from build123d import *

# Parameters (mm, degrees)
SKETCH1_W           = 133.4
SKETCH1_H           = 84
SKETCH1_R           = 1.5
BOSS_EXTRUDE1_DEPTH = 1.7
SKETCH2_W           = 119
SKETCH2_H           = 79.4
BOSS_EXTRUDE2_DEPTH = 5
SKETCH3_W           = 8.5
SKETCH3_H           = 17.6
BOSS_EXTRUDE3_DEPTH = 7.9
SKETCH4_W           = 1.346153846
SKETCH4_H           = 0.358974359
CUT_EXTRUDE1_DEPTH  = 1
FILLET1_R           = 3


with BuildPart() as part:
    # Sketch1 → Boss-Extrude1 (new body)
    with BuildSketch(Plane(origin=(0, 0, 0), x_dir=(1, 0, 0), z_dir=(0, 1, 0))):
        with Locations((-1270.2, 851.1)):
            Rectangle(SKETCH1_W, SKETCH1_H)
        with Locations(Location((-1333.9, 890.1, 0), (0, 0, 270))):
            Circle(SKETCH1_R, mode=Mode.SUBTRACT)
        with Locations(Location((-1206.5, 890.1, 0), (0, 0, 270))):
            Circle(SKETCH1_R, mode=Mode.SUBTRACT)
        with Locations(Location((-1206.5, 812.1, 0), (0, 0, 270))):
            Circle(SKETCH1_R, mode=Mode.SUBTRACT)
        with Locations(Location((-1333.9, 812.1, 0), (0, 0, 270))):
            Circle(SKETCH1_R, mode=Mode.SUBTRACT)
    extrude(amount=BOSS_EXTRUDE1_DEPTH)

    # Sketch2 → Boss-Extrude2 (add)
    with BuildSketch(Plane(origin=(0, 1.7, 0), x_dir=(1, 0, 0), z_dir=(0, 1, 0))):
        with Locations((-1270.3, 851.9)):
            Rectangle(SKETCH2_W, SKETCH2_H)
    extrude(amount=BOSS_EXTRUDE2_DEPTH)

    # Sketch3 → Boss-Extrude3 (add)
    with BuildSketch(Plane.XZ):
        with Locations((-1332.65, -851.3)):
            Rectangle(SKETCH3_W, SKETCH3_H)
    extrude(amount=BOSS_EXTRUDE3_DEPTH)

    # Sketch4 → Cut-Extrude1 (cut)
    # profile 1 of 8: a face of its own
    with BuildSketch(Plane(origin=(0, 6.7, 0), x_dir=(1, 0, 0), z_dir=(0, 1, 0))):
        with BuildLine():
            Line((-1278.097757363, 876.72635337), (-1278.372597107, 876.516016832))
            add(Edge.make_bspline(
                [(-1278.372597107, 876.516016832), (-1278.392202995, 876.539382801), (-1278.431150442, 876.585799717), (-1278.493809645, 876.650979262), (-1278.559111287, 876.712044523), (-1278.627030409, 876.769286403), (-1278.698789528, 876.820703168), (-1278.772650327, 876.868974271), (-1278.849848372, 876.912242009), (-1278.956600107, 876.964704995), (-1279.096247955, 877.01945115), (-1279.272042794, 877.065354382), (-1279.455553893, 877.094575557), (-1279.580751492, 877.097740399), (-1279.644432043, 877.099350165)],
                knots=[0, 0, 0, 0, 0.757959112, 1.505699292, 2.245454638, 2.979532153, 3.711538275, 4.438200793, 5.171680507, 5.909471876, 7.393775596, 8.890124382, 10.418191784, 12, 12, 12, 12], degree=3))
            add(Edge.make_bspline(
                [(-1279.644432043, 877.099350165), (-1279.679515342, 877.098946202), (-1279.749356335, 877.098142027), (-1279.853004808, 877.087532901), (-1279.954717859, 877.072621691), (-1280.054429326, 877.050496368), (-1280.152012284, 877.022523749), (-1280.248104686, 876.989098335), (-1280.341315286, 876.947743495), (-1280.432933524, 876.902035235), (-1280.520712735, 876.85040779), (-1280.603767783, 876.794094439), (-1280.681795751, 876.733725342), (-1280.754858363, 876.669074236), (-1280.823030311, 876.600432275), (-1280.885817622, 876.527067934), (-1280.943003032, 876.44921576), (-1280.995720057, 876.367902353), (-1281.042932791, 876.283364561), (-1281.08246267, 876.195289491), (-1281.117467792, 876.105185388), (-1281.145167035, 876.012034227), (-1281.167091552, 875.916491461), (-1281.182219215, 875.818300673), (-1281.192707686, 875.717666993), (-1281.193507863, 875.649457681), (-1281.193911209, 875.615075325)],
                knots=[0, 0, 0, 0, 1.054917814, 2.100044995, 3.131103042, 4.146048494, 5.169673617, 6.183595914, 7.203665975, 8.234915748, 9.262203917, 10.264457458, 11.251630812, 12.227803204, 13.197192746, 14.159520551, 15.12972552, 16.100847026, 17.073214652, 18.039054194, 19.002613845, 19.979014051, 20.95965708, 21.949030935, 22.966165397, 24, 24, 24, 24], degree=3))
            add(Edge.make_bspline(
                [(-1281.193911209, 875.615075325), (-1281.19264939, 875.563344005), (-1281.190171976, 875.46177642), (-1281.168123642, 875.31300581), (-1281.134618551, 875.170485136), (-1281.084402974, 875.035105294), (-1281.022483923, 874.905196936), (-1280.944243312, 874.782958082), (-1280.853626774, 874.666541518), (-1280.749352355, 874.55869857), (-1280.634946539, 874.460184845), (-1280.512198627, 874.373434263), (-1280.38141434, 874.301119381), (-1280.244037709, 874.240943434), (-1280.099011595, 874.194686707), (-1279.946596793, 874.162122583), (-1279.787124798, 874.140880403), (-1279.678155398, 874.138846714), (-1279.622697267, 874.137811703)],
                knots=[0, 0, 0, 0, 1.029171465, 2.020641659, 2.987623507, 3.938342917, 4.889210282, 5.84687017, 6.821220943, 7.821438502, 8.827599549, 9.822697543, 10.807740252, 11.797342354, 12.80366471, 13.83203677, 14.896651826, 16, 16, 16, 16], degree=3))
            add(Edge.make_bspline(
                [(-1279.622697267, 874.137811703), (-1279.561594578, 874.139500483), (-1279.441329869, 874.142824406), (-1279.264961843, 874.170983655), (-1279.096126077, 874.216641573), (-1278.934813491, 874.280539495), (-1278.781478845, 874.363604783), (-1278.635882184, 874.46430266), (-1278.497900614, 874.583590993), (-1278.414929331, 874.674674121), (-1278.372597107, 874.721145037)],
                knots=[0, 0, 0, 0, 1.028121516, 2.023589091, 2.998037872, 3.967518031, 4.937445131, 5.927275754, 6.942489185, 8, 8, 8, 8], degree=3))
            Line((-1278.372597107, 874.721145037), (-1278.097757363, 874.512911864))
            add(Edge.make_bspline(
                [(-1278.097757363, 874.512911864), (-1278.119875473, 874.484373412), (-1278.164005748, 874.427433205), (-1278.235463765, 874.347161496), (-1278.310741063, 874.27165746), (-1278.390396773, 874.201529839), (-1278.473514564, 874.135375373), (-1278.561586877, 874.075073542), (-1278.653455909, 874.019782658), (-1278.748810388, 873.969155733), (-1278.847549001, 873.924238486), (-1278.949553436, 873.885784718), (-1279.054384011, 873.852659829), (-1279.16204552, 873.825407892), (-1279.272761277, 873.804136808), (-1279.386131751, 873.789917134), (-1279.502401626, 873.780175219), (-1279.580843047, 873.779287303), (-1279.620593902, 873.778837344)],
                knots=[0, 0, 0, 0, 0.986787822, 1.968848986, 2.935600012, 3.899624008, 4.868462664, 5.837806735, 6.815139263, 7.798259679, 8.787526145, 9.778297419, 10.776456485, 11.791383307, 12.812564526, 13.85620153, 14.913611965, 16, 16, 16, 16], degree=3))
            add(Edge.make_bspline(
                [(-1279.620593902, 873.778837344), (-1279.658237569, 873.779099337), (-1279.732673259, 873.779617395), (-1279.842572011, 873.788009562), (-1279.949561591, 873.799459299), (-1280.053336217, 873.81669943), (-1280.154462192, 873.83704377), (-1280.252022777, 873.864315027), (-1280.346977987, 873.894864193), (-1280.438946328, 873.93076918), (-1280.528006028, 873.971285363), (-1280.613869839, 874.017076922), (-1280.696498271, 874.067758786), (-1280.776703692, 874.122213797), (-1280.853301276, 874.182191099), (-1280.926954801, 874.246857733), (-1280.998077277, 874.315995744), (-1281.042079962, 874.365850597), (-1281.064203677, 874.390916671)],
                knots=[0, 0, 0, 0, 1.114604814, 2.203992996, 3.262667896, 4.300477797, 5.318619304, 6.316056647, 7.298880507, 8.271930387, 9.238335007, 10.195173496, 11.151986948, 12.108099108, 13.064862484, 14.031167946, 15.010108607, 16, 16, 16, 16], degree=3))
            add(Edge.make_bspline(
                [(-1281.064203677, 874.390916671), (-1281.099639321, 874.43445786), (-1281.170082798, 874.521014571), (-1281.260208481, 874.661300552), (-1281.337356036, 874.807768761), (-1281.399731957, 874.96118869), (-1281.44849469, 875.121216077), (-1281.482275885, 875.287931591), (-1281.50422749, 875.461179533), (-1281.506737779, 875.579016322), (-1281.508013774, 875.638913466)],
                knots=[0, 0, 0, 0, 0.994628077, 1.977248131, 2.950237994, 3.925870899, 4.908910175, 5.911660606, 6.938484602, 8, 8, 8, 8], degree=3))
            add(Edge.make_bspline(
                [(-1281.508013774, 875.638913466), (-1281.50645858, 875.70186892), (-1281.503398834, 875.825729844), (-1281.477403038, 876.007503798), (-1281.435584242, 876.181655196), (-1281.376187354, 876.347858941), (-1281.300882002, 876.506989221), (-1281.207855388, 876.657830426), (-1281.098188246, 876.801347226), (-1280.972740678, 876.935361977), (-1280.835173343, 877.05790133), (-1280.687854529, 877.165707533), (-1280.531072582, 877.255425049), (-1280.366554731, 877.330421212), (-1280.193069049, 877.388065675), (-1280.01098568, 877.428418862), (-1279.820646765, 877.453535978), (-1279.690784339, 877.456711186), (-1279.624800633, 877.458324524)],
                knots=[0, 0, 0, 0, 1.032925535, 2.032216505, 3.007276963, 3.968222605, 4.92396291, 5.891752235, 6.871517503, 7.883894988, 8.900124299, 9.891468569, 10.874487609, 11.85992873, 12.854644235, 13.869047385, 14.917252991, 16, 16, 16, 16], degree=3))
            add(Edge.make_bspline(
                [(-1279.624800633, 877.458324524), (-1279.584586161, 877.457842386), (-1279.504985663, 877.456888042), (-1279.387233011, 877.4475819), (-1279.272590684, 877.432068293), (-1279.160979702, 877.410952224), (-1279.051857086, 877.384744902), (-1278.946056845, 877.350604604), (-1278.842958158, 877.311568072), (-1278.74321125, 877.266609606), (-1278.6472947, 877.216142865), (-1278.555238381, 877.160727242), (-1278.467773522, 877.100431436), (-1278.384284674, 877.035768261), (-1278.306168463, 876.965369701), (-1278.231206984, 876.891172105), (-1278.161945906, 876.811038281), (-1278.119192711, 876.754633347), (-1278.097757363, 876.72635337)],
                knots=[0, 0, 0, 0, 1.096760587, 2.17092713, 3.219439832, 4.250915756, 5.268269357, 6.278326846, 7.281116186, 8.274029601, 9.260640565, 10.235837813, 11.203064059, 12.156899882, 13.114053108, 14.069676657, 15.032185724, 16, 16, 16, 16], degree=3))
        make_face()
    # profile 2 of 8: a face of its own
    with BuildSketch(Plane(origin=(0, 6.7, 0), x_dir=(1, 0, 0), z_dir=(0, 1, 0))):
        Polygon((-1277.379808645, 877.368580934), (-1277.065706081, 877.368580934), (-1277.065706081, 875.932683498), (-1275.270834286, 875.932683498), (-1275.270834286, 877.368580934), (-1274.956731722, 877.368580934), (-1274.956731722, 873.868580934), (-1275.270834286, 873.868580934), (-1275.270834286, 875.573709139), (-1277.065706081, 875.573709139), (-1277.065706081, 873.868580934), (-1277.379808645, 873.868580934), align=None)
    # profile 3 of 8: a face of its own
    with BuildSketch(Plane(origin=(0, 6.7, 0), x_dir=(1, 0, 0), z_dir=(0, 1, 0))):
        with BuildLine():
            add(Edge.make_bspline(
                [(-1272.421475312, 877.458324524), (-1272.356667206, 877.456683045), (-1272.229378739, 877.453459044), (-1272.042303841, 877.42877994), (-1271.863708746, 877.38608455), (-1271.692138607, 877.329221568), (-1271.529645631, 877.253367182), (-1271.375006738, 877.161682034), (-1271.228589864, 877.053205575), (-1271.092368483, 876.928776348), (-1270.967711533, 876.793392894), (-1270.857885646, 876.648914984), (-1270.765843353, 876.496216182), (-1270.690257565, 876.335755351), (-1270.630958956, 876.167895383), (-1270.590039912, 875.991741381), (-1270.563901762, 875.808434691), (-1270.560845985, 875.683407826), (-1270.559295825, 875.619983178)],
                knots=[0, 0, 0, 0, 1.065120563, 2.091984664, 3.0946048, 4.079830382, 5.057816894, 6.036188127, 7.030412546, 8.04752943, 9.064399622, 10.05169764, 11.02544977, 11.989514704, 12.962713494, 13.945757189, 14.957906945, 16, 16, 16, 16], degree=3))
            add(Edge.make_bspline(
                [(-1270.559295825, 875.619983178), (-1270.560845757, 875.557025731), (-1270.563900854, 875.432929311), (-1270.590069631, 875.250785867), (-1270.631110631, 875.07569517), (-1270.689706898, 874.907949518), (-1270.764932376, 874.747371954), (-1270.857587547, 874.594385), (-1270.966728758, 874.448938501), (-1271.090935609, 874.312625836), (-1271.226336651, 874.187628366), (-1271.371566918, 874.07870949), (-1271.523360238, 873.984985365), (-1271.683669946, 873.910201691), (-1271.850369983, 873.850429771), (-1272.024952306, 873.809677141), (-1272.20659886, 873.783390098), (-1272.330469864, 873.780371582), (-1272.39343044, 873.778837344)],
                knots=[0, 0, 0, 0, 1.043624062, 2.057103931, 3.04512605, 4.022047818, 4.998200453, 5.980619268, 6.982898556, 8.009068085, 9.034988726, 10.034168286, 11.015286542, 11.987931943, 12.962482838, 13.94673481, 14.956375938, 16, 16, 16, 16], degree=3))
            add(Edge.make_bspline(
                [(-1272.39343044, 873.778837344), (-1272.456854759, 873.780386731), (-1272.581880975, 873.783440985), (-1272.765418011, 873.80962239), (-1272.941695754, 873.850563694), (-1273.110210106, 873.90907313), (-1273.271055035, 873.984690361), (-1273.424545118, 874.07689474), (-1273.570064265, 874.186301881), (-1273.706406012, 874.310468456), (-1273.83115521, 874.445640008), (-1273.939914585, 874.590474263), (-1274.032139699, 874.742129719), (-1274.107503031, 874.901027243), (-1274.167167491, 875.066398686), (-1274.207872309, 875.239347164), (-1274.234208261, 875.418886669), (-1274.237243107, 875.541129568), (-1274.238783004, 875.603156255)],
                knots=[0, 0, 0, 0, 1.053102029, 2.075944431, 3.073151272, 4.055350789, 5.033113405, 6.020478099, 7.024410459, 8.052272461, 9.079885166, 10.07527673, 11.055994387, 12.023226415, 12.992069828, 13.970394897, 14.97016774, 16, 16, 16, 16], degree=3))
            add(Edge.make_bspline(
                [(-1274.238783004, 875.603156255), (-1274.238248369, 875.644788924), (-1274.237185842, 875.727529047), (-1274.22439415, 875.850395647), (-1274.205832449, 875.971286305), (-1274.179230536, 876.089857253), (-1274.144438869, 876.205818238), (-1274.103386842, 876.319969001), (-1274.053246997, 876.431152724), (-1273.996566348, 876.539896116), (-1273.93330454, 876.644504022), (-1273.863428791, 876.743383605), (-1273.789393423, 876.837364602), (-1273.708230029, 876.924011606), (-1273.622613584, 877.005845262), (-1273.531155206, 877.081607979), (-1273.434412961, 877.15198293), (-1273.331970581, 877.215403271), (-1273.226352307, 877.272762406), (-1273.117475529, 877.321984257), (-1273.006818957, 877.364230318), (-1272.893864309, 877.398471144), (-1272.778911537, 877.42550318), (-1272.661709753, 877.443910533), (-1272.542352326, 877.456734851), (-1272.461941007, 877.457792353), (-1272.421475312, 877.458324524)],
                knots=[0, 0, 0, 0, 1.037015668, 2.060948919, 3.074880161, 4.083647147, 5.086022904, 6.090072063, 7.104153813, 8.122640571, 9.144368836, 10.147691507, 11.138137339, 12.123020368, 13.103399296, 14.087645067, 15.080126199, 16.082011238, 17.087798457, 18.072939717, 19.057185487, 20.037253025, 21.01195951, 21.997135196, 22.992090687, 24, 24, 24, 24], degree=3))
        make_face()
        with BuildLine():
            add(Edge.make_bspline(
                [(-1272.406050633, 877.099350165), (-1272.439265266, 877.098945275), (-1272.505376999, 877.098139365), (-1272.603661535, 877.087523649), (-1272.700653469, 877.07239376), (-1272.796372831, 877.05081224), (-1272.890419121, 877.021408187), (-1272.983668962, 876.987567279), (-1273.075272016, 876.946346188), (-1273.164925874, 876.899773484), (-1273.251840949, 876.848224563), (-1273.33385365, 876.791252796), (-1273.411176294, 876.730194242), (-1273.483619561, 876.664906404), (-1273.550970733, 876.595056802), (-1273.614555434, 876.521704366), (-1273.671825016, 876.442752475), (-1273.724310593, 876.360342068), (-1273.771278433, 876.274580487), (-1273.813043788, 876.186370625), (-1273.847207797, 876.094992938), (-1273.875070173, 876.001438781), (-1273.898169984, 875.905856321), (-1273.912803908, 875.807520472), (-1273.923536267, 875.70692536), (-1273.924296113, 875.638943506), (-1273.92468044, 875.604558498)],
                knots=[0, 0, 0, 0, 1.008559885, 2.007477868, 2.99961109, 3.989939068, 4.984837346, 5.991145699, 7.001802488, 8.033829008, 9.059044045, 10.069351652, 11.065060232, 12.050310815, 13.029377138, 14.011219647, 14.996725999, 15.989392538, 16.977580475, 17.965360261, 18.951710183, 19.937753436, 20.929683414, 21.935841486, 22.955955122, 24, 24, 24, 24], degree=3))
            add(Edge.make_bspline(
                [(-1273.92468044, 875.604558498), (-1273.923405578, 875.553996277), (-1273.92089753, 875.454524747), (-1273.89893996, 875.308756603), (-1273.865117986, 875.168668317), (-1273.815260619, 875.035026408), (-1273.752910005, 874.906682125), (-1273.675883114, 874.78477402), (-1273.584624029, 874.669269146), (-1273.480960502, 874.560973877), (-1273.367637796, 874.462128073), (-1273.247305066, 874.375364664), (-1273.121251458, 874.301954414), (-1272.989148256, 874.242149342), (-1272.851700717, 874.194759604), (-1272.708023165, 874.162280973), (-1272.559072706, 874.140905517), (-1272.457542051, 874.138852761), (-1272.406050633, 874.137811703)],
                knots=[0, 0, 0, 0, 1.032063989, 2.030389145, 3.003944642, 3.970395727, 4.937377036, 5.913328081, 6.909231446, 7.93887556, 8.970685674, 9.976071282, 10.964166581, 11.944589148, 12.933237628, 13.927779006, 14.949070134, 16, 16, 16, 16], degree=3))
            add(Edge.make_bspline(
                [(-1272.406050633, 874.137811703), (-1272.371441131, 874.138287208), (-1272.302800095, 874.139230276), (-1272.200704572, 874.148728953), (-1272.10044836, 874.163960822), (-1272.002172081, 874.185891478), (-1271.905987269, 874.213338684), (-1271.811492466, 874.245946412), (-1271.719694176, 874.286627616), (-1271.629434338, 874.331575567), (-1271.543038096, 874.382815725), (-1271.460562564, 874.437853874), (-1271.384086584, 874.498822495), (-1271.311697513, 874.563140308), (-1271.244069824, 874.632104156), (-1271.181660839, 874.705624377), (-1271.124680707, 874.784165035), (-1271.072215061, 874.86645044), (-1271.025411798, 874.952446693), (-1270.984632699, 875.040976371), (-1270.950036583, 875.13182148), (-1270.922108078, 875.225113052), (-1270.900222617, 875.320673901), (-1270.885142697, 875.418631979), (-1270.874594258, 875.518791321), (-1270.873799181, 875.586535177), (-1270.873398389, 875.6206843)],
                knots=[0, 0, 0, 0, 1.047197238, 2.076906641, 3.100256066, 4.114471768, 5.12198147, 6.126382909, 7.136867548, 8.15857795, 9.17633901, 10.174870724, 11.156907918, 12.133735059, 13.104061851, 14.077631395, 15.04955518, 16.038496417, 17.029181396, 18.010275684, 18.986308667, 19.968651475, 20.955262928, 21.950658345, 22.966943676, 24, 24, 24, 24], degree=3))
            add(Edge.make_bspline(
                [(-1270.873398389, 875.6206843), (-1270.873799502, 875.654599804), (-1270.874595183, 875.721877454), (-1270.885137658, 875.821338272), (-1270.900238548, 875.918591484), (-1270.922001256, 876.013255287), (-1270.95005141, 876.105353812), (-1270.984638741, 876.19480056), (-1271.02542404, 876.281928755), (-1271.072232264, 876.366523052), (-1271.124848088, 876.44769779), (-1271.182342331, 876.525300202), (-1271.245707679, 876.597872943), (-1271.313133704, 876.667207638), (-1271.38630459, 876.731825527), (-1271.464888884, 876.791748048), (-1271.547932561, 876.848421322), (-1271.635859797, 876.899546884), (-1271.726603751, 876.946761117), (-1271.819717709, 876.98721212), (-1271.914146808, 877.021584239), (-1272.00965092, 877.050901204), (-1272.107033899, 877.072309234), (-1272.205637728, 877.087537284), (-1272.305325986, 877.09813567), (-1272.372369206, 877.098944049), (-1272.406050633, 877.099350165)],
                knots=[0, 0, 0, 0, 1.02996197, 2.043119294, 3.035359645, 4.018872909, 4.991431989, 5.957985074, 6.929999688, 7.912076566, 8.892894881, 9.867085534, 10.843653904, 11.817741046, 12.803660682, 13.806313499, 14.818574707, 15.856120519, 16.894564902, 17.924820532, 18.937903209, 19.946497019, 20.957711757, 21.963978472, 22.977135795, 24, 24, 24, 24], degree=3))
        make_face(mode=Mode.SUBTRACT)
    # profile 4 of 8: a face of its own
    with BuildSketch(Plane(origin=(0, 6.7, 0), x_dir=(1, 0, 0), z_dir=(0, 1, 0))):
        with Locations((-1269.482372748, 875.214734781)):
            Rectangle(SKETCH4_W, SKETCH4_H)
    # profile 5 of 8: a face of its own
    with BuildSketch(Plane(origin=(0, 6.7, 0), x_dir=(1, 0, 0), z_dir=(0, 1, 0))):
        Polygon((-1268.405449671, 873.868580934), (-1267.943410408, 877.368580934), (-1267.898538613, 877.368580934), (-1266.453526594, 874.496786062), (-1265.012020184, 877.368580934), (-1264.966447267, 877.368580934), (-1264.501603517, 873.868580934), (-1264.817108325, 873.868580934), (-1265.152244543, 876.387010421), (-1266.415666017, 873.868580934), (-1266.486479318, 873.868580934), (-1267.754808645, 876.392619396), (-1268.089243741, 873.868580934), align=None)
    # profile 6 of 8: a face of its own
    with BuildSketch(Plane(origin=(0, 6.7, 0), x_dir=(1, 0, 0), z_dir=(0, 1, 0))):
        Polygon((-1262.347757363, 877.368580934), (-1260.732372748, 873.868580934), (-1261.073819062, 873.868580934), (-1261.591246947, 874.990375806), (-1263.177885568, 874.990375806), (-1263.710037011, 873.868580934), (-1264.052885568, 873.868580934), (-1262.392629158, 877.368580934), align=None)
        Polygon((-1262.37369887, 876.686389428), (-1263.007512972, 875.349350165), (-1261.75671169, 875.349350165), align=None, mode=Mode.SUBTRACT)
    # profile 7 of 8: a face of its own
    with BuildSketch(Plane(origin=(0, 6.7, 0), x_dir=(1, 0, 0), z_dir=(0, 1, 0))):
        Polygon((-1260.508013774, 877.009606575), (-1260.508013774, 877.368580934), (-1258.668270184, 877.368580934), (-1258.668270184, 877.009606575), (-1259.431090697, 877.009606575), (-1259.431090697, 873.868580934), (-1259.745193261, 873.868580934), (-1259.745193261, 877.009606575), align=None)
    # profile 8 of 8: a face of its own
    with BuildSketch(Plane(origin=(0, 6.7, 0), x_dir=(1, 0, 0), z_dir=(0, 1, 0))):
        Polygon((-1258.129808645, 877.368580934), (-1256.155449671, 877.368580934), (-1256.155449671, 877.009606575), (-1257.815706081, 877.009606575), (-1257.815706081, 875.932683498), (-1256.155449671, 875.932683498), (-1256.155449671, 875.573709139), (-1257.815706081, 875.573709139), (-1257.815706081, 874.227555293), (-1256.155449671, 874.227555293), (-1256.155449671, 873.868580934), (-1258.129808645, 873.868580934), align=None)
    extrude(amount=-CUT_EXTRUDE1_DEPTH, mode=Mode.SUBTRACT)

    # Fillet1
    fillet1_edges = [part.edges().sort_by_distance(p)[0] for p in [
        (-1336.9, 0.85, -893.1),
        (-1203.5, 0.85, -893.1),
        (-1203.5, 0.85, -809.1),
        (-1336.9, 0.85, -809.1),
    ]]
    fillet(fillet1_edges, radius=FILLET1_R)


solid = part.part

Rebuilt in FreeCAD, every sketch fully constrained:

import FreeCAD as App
import Part
import Sketcher

V = App.Vector
Q = App.Units.Quantity


def edges_at(feature, points):
    """Names of the edges that pass closest to the given points."""
    edges = feature.Shape.Edges
    near = lambda p: min(range(len(edges)), key=lambda i: edges[i].distToShape(Part.Vertex(*p))[0])
    return sorted({f"Edge{near(p) + 1}" for p in points})


def add_polygon(sketch, points):
    """Adds a closed chain of lines whose ends are joined by coincident constraints."""
    first, n = sketch.GeometryCount, len(points)
    for a, b in zip(points, points[1:] + points[:1]):
        sketch.addGeometry(Part.LineSegment(App.Vector(*a, 0), App.Vector(*b, 0)), False)
    for i in range(n):
        sketch.addConstraint(Sketcher.Constraint("Coincident", first + i, 2, first + (i + 1) % n, 1))

doc = App.newDocument("Part")
body = doc.addObject("PartDesign::Body", "Body")

sketch1 = body.newObject("Sketcher::SketchObject", "Sketch")
sketch1.AttachmentSupport = (doc.getObject("XZ_Plane"), [""])
sketch1.MapMode = "FlatFace"
add_polygon(sketch1, [(-1336.9, -893.1), (-1336.9, -809.1), (-1203.5, -809.1), (-1203.5, -893.1)])
sketch1.addGeometry(Part.Circle(V(-1333.9, -812.1, 0), V(0, 0, 1), 1.5), False)
sketch1.addGeometry(Part.Circle(V(-1206.5, -812.1, 0), V(0, 0, 1), 1.5), False)
sketch1.addGeometry(Part.Circle(V(-1333.9, -890.1, 0), V(0, 0, 1), 1.5), False)
sketch1.addGeometry(Part.Circle(V(-1206.5, -890.1, 0), V(0, 0, 1), 1.5), False)
sketch1.addConstraint([
    Sketcher.Constraint("Vertical", 0),
    Sketcher.Constraint("Horizontal", 1),
    Sketcher.Constraint("Vertical", 2),
    Sketcher.Constraint("Horizontal", 3),
    Sketcher.Constraint("Equal", 4, 5),
    Sketcher.Constraint("Equal", 5, 6),
    Sketcher.Constraint("Equal", 6, 7),
    Sketcher.Constraint("Horizontal", 4, 3, 5, 3),
    Sketcher.Constraint("Horizontal", 6, 3, 7, 3),
    Sketcher.Constraint("Vertical", 4, 3, 6, 3),
    Sketcher.Constraint("Vertical", 5, 3, 7, 3),
    Sketcher.Constraint("Diameter", 4, Q("3 mm")),
    Sketcher.Constraint("DistanceY", 0, 1, 0, 2, Q("84 mm")),
    Sketcher.Constraint("DistanceX", 1, 1, 1, 2, Q("133.4 mm")),
    Sketcher.Constraint("DistanceY", 6, 3, 4, 3, Q("78 mm")),
    Sketcher.Constraint("DistanceX", 0, 2, 4, 3, Q("3 mm")),
    Sketcher.Constraint("DistanceY", 4, 3, 0, 2, Q("3 mm")),
    Sketcher.Constraint("DistanceX", 5, 3, 1, 2, Q("3 mm")),
    Sketcher.Constraint("DistanceX", 4, 3, -1, 1, Q("1333.9 mm")),
    Sketcher.Constraint("DistanceY", 4, 3, -1, 1, Q("812.1 mm")),
])
pad1 = body.newObject("PartDesign::Pad", "Pad")
pad1.Profile = sketch1
pad1.Length = 1.7
pad1.Reversed = True

sketch2 = body.newObject("Sketcher::SketchObject", "Sketch001")
sketch2.AttachmentSupport = (doc.getObject("XZ_Plane"), [""])
sketch2.MapMode = "FlatFace"
sketch2.AttachmentOffset = App.Placement(V(0, 0, -1.7), App.Rotation())
add_polygon(sketch2, [(-1329.8, -891.6), (-1329.8, -812.2), (-1210.8, -812.2), (-1210.8, -891.6)])
sketch2.addConstraint([
    Sketcher.Constraint("Vertical", 0),
    Sketcher.Constraint("Horizontal", 1),
    Sketcher.Constraint("Vertical", 2),
    Sketcher.Constraint("Horizontal", 3),
    Sketcher.Constraint("DistanceX", 1, 1, 1, 2, Q("119 mm")),
    Sketcher.Constraint("DistanceY", 0, 1, 0, 2, Q("79.4 mm")),
    Sketcher.Constraint("DistanceX", 0, 2, -1, 1, Q("1329.8 mm")),
    Sketcher.Constraint("DistanceY", 0, 2, -1, 1, Q("812.2 mm")),
])
pad2 = body.newObject("PartDesign::Pad", "Pad001")
pad2.Profile = sketch2
pad2.Length = 5
pad2.Reversed = True

sketch3 = body.newObject("Sketcher::SketchObject", "Sketch002")
sketch3.AttachmentSupport = (doc.getObject("XZ_Plane"), [""])
sketch3.MapMode = "FlatFace"
add_polygon(sketch3, [(-1336.9, -842.5), (-1336.9, -860.1), (-1328.4, -860.1), (-1328.4, -842.5)])
sketch3.addConstraint([
    Sketcher.Constraint("Vertical", 0),
    Sketcher.Constraint("Horizontal", 1),
    Sketcher.Constraint("Vertical", 2),
    Sketcher.Constraint("Horizontal", 3),
    Sketcher.Constraint("DistanceX", 1, 1, 1, 2, Q("8.5 mm")),
    Sketcher.Constraint("DistanceY", 0, 2, 0, 1, Q("17.6 mm")),
    Sketcher.Constraint("DistanceX", 0, 2, -1, 1, Q("1336.9 mm")),
    Sketcher.Constraint("DistanceY", 0, 2, -1, 1, Q("860.1 mm")),
])
pad3 = body.newObject("PartDesign::Pad", "Pad002")
pad3.Profile = sketch3
pad3.Length = 7.9

sketch4 = body.newObject("Sketcher::SketchObject", "Sketch003")
sketch4.AttachmentSupport = (doc.getObject("XZ_Plane"), [""])
sketch4.MapMode = "FlatFace"
sketch4.AttachmentOffset = App.Placement(V(0, 0, -6.7), App.Rotation())
sketch4.addGeometry(Part.LineSegment(V(-1278.372597, -876.516017, 0), V(-1278.097757, -876.726353, 0)), False)
sketch4.addGeometry(Part.BSplineCurve([V(-1279.624801, -877.458325, 0), V(-1279.584586, -877.457842, 0), V(-1279.504986, -877.456888, 0), V(-1279.387233, -877.447582, 0), V(-1279.272591, -877.432068, 0), V(-1279.16098, -877.410952, 0), V(-1279.051857, -877.384745, 0), V(-1278.946057, -877.350605, 0), V(-1278.842958, -877.311568, 0), V(-1278.743211, -877.26661, 0), V(-1278.647295, -877.216143, 0), V(-1278.555238, -877.160727, 0), V(-1278.467774, -877.100431, 0), V(-1278.384285, -877.035768, 0), V(-1278.306168, -876.96537, 0), V(-1278.231207, -876.891172, 0), V(-1278.161946, -876.811038, 0), V(-1278.119193, -876.754633, 0), V(-1278.097757, -876.726353, 0)], [4, 1, 1, 1, 1, 1, 1, 1, 1, 1, 1, 1, 1, 1, 1, 1, 4], [0, 1.096760587, 2.17092713, 3.219439832, 4.250915756, 5.268269357, 6.278326846, 7.281116186, 8.274029601, 9.260640565, 10.235837813, 11.203064059, 12.156899882, 13.114053108, 14.069676657, 15.032185724, 16], False, 3, [1, 1, 1, 1, 1, 1, 1, 1, 1, 1, 1, 1, 1, 1, 1, 1, 1, 1, 1], False), False)
sketch4.addGeometry(Part.BSplineCurve([V(-1281.508014, -875.638913, 0), V(-1281.506459, -875.701869, 0), V(-1281.503399, -875.82573, 0), V(-1281.477403, -876.007504, 0), V(-1281.435584, -876.181655, 0), V(-1281.376187, -876.347859, 0), V(-1281.300882, -876.506989, 0), V(-1281.207855, -876.65783, 0), V(-1281.098188, -876.801347, 0), V(-1280.972741, -876.935362, 0), V(-1280.835173, -877.057901, 0), V(-1280.687855, -877.165708, 0), V(-1280.531073, -877.255425, 0), V(-1280.366555, -877.330421, 0), V(-1280.193069, -877.388066, 0), V(-1280.010986, -877.428419, 0), V(-1279.820647, -877.453536, 0), V(-1279.690784, -877.456711, 0), V(-1279.624801, -877.458325, 0)], [4, 1, 1, 1, 1, 1, 1, 1, 1, 1, 1, 1, 1, 1, 1, 1, 4], [0, 1.032925535, 2.032216505, 3.007276963, 3.968222605, 4.92396291, 5.891752235, 6.871517503, 7.883894988, 8.900124299, 9.891468569, 10.874487609, 11.85992873, 12.854644235, 13.869047385, 14.917252991, 16], False, 3, [1, 1, 1, 1, 1, 1, 1, 1, 1, 1, 1, 1, 1, 1, 1, 1, 1, 1, 1], False), False)
sketch4.addGeometry(Part.BSplineCurve([V(-1281.064204, -874.390917, 0), V(-1281.099639, -874.434458, 0), V(-1281.170083, -874.521015, 0), V(-1281.260208, -874.661301, 0), V(-1281.337356, -874.807769, 0), V(-1281.399732, -874.961189, 0), V(-1281.448495, -875.121216, 0), V(-1281.482276, -875.287932, 0), V(-1281.504227, -875.46118, 0), V(-1281.506738, -875.579016, 0), V(-1281.508014, -875.638913, 0)], [4, 1, 1, 1, 1, 1, 1, 1, 4], [0, 0.994628077, 1.977248131, 2.950237994, 3.925870899, 4.908910175, 5.911660606, 6.938484602, 8], False, 3, [1, 1, 1, 1, 1, 1, 1, 1, 1, 1, 1], False), False)
sketch4.addGeometry(Part.BSplineCurve([V(-1279.620594, -873.778837, 0), V(-1279.658238, -873.779099, 0), V(-1279.732673, -873.779617, 0), V(-1279.842572, -873.78801, 0), V(-1279.949562, -873.799459, 0), V(-1280.053336, -873.816699, 0), V(-1280.154462, -873.837044, 0), V(-1280.252023, -873.864315, 0), V(-1280.346978, -873.894864, 0), V(-1280.438946, -873.930769, 0), V(-1280.528006, -873.971285, 0), V(-1280.61387, -874.017077, 0), V(-1280.696498, -874.067759, 0), V(-1280.776704, -874.122214, 0), V(-1280.853301, -874.182191, 0), V(-1280.926955, -874.246858, 0), V(-1280.998077, -874.315996, 0), V(-1281.04208, -874.365851, 0), V(-1281.064204, -874.390917, 0)], [4, 1, 1, 1, 1, 1, 1, 1, 1, 1, 1, 1, 1, 1, 1, 1, 4], [0, 1.114604814, 2.203992996, 3.262667896, 4.300477797, 5.318619304, 6.316056647, 7.298880507, 8.271930387, 9.238335007, 10.195173496, 11.151986948, 12.108099108, 13.064862484, 14.031167946, 15.010108607, 16], False, 3, [1, 1, 1, 1, 1, 1, 1, 1, 1, 1, 1, 1, 1, 1, 1, 1, 1, 1, 1], False), False)
sketch4.addGeometry(Part.BSplineCurve([V(-1278.097757, -874.512912, 0), V(-1278.119875, -874.484373, 0), V(-1278.164006, -874.427433, 0), V(-1278.235464, -874.347161, 0), V(-1278.310741, -874.271657, 0), V(-1278.390397, -874.20153, 0), V(-1278.473515, -874.135375, 0), V(-1278.561587, -874.075074, 0), V(-1278.653456, -874.019783, 0), V(-1278.74881, -873.969156, 0), V(-1278.847549, -873.924238, 0), V(-1278.949553, -873.885785, 0), V(-1279.054384, -873.85266, 0), V(-1279.162046, -873.825408, 0), V(-1279.272761, -873.804137, 0), V(-1279.386132, -873.789917, 0), V(-1279.502402, -873.780175, 0), V(-1279.580843, -873.779287, 0), V(-1279.620594, -873.778837, 0)], [4, 1, 1, 1, 1, 1, 1, 1, 1, 1, 1, 1, 1, 1, 1, 1, 4], [0, 0.986787822, 1.968848986, 2.935600012, 3.899624008, 4.868462664, 5.837806735, 6.815139263, 7.798259679, 8.787526145, 9.778297419, 10.776456485, 11.791383307, 12.812564526, 13.85620153, 14.913611965, 16], False, 3, [1, 1, 1, 1, 1, 1, 1, 1, 1, 1, 1, 1, 1, 1, 1, 1, 1, 1, 1], False), False)
sketch4.addGeometry(Part.LineSegment(V(-1278.097757, -874.512912, 0), V(-1278.372597, -874.721145, 0)), False)
sketch4.addGeometry(Part.BSplineCurve([V(-1279.622697, -874.137812, 0), V(-1279.561595, -874.1395, 0), V(-1279.44133, -874.142824, 0), V(-1279.264962, -874.170984, 0), V(-1279.096126, -874.216642, 0), V(-1278.934813, -874.280539, 0), V(-1278.781479, -874.363605, 0), V(-1278.635882, -874.464303, 0), V(-1278.497901, -874.583591, 0), V(-1278.414929, -874.674674, 0), V(-1278.372597, -874.721145, 0)], [4, 1, 1, 1, 1, 1, 1, 1, 4], [0, 1.028121516, 2.023589091, 2.998037872, 3.967518031, 4.937445131, 5.927275754, 6.942489185, 8], False, 3, [1, 1, 1, 1, 1, 1, 1, 1, 1, 1, 1], False), False)
sketch4.addGeometry(Part.BSplineCurve([V(-1281.193911, -875.615075, 0), V(-1281.192649, -875.563344, 0), V(-1281.190172, -875.461776, 0), V(-1281.168124, -875.313006, 0), V(-1281.134619, -875.170485, 0), V(-1281.084403, -875.035105, 0), V(-1281.022484, -874.905197, 0), V(-1280.944243, -874.782958, 0), V(-1280.853627, -874.666542, 0), V(-1280.749352, -874.558699, 0), V(-1280.634947, -874.460185, 0), V(-1280.512199, -874.373434, 0), V(-1280.381414, -874.301119, 0), V(-1280.244038, -874.240943, 0), V(-1280.099012, -874.194687, 0), V(-1279.946597, -874.162123, 0), V(-1279.787125, -874.14088, 0), V(-1279.678155, -874.138847, 0), V(-1279.622697, -874.137812, 0)], [4, 1, 1, 1, 1, 1, 1, 1, 1, 1, 1, 1, 1, 1, 1, 1, 4], [0, 1.029171465, 2.020641659, 2.987623507, 3.938342917, 4.889210282, 5.84687017, 6.821220943, 7.821438502, 8.827599549, 9.822697543, 10.807740252, 11.797342354, 12.80366471, 13.83203677, 14.896651826, 16], False, 3, [1, 1, 1, 1, 1, 1, 1, 1, 1, 1, 1, 1, 1, 1, 1, 1, 1, 1, 1], False), False)
sketch4.addGeometry(Part.BSplineCurve([V(-1279.644432, -877.09935, 0), V(-1279.679515, -877.098946, 0), V(-1279.749356, -877.098142, 0), V(-1279.853005, -877.087533, 0), V(-1279.954718, -877.072622, 0), V(-1280.054429, -877.050496, 0), V(-1280.152012, -877.022524, 0), V(-1280.248105, -876.989098, 0), V(-1280.341315, -876.947743, 0), V(-1280.432934, -876.902035, 0), V(-1280.520713, -876.850408, 0), V(-1280.603768, -876.794094, 0), V(-1280.681796, -876.733725, 0), V(-1280.754858, -876.669074, 0), V(-1280.82303, -876.600432, 0), V(-1280.885818, -876.527068, 0), V(-1280.943003, -876.449216, 0), V(-1280.99572, -876.367902, 0), V(-1281.042933, -876.283365, 0), V(-1281.082463, -876.195289, 0), V(-1281.117468, -876.105185, 0), V(-1281.145167, -876.012034, 0), V(-1281.167092, -875.916491, 0), V(-1281.182219, -875.818301, 0), V(-1281.192708, -875.717667, 0), V(-1281.193508, -875.649458, 0), V(-1281.193911, -875.615075, 0)], [4, 1, 1, 1, 1, 1, 1, 1, 1, 1, 1, 1, 1, 1, 1, 1, 1, 1, 1, 1, 1, 1, 1, 1, 4], [0, 1.054917814, 2.100044995, 3.131103042, 4.146048494, 5.169673617, 6.183595914, 7.203665975, 8.234915748, 9.262203917, 10.264457458, 11.251630812, 12.227803204, 13.197192746, 14.159520551, 15.12972552, 16.100847026, 17.073214652, 18.039054194, 19.002613845, 19.979014051, 20.95965708, 21.949030935, 22.966165397, 24], False, 3, [1, 1, 1, 1, 1, 1, 1, 1, 1, 1, 1, 1, 1, 1, 1, 1, 1, 1, 1, 1, 1, 1, 1, 1, 1, 1, 1], False), False)
sketch4.addGeometry(Part.BSplineCurve([V(-1278.372597, -876.516017, 0), V(-1278.392203, -876.539383, 0), V(-1278.43115, -876.5858, 0), V(-1278.49381, -876.650979, 0), V(-1278.559111, -876.712045, 0), V(-1278.62703, -876.769286, 0), V(-1278.69879, -876.820703, 0), V(-1278.77265, -876.868974, 0), V(-1278.849848, -876.912242, 0), V(-1278.9566, -876.964705, 0), V(-1279.096248, -877.019451, 0), V(-1279.272043, -877.065354, 0), V(-1279.455554, -877.094576, 0), V(-1279.580751, -877.09774, 0), V(-1279.644432, -877.09935, 0)], [4, 1, 1, 1, 1, 1, 1, 1, 1, 1, 1, 1, 4], [0, 0.757959112, 1.505699292, 2.245454638, 2.979532153, 3.711538275, 4.438200793, 5.171680507, 5.909471876, 7.393775596, 8.890124382, 10.418191784, 12], False, 3, [1, 1, 1, 1, 1, 1, 1, 1, 1, 1, 1, 1, 1, 1, 1], False), False)
add_polygon(sketch4, [(-1277.065706, -877.368581), (-1277.379809, -877.368581), (-1277.379809, -873.868581), (-1277.065706, -873.868581), (-1277.065706, -875.573709), (-1275.270834, -875.573709), (-1275.270834, -873.868581), (-1274.956732, -873.868581), (-1274.956732, -877.368581), (-1275.270834, -877.368581), (-1275.270834, -875.932683), (-1277.065706, -875.932683)])
sketch4.addGeometry(Part.BSplineCurve([V(-1272.421475, -877.458325, 0), V(-1272.356667, -877.456683, 0), V(-1272.229379, -877.453459, 0), V(-1272.042304, -877.42878, 0), V(-1271.863709, -877.386085, 0), V(-1271.692139, -877.329222, 0), V(-1271.529646, -877.253367, 0), V(-1271.375007, -877.161682, 0), V(-1271.22859, -877.053206, 0), V(-1271.092368, -876.928776, 0), V(-1270.967712, -876.793393, 0), V(-1270.857886, -876.648915, 0), V(-1270.765843, -876.496216, 0), V(-1270.690258, -876.335755, 0), V(-1270.630959, -876.167895, 0), V(-1270.59004, -875.991741, 0), V(-1270.563902, -875.808435, 0), V(-1270.560846, -875.683408, 0), V(-1270.559296, -875.619983, 0)], [4, 1, 1, 1, 1, 1, 1, 1, 1, 1, 1, 1, 1, 1, 1, 1, 4], [0, 1.065120563, 2.091984664, 3.0946048, 4.079830382, 5.057816894, 6.036188127, 7.030412546, 8.04752943, 9.064399622, 10.05169764, 11.02544977, 11.989514704, 12.962713494, 13.945757189, 14.957906945, 16], False, 3, [1, 1, 1, 1, 1, 1, 1, 1, 1, 1, 1, 1, 1, 1, 1, 1, 1, 1, 1], False), False)
sketch4.addGeometry(Part.BSplineCurve([V(-1274.238783, -875.603156, 0), V(-1274.238248, -875.644789, 0), V(-1274.237186, -875.727529, 0), V(-1274.224394, -875.850396, 0), V(-1274.205832, -875.971286, 0), V(-1274.179231, -876.089857, 0), V(-1274.144439, -876.205818, 0), V(-1274.103387, -876.319969, 0), V(-1274.053247, -876.431153, 0), V(-1273.996566, -876.539896, 0), V(-1273.933305, -876.644504, 0), V(-1273.863429, -876.743384, 0), V(-1273.789393, -876.837365, 0), V(-1273.70823, -876.924012, 0), V(-1273.622614, -877.005845, 0), V(-1273.531155, -877.081608, 0), V(-1273.434413, -877.151983, 0), V(-1273.331971, -877.215403, 0), V(-1273.226352, -877.272762, 0), V(-1273.117476, -877.321984, 0), V(-1273.006819, -877.36423, 0), V(-1272.893864, -877.398471, 0), V(-1272.778912, -877.425503, 0), V(-1272.66171, -877.443911, 0), V(-1272.542352, -877.456735, 0), V(-1272.461941, -877.457792, 0), V(-1272.421475, -877.458325, 0)], [4, 1, 1, 1, 1, 1, 1, 1, 1, 1, 1, 1, 1, 1, 1, 1, 1, 1, 1, 1, 1, 1, 1, 1, 4], [0, 1.037015668, 2.060948919, 3.074880161, 4.083647147, 5.086022904, 6.090072063, 7.104153813, 8.122640571, 9.144368836, 10.147691507, 11.138137339, 12.123020368, 13.103399296, 14.087645067, 15.080126199, 16.082011238, 17.087798457, 18.072939717, 19.057185487, 20.037253025, 21.01195951, 21.997135196, 22.992090687, 24], False, 3, [1, 1, 1, 1, 1, 1, 1, 1, 1, 1, 1, 1, 1, 1, 1, 1, 1, 1, 1, 1, 1, 1, 1, 1, 1, 1, 1], False), False)
sketch4.addGeometry(Part.BSplineCurve([V(-1272.39343, -873.778837, 0), V(-1272.456855, -873.780387, 0), V(-1272.581881, -873.783441, 0), V(-1272.765418, -873.809622, 0), V(-1272.941696, -873.850564, 0), V(-1273.11021, -873.909073, 0), V(-1273.271055, -873.98469, 0), V(-1273.424545, -874.076895, 0), V(-1273.570064, -874.186302, 0), V(-1273.706406, -874.310468, 0), V(-1273.831155, -874.44564, 0), V(-1273.939915, -874.590474, 0), V(-1274.03214, -874.74213, 0), V(-1274.107503, -874.901027, 0), V(-1274.167167, -875.066399, 0), V(-1274.207872, -875.239347, 0), V(-1274.234208, -875.418887, 0), V(-1274.237243, -875.54113, 0), V(-1274.238783, -875.603156, 0)], [4, 1, 1, 1, 1, 1, 1, 1, 1, 1, 1, 1, 1, 1, 1, 1, 4], [0, 1.053102029, 2.075944431, 3.073151272, 4.055350789, 5.033113405, 6.020478099, 7.024410459, 8.052272461, 9.079885166, 10.07527673, 11.055994387, 12.023226415, 12.992069828, 13.970394897, 14.97016774, 16], False, 3, [1, 1, 1, 1, 1, 1, 1, 1, 1, 1, 1, 1, 1, 1, 1, 1, 1, 1, 1], False), False)
sketch4.addGeometry(Part.BSplineCurve([V(-1270.559296, -875.619983, 0), V(-1270.560846, -875.557026, 0), V(-1270.563901, -875.432929, 0), V(-1270.59007, -875.250786, 0), V(-1270.631111, -875.075695, 0), V(-1270.689707, -874.90795, 0), V(-1270.764932, -874.747372, 0), V(-1270.857588, -874.594385, 0), V(-1270.966729, -874.448939, 0), V(-1271.090936, -874.312626, 0), V(-1271.226337, -874.187628, 0), V(-1271.371567, -874.078709, 0), V(-1271.52336, -873.984985, 0), V(-1271.68367, -873.910202, 0), V(-1271.85037, -873.85043, 0), V(-1272.024952, -873.809677, 0), V(-1272.206599, -873.78339, 0), V(-1272.33047, -873.780372, 0), V(-1272.39343, -873.778837, 0)], [4, 1, 1, 1, 1, 1, 1, 1, 1, 1, 1, 1, 1, 1, 1, 1, 4], [0, 1.043624062, 2.057103931, 3.04512605, 4.022047818, 4.998200453, 5.980619268, 6.982898556, 8.009068085, 9.034988726, 10.034168286, 11.015286542, 11.987931943, 12.962482838, 13.94673481, 14.956375938, 16], False, 3, [1, 1, 1, 1, 1, 1, 1, 1, 1, 1, 1, 1, 1, 1, 1, 1, 1, 1, 1], False), False)
sketch4.addGeometry(Part.BSplineCurve([V(-1270.873398, -875.620684, 0), V(-1270.8738, -875.6546, 0), V(-1270.874595, -875.721877, 0), V(-1270.885138, -875.821338, 0), V(-1270.900239, -875.918591, 0), V(-1270.922001, -876.013255, 0), V(-1270.950051, -876.105354, 0), V(-1270.984639, -876.194801, 0), V(-1271.025424, -876.281929, 0), V(-1271.072232, -876.366523, 0), V(-1271.124848, -876.447698, 0), V(-1271.182342, -876.5253, 0), V(-1271.245708, -876.597873, 0), V(-1271.313134, -876.667208, 0), V(-1271.386305, -876.731826, 0), V(-1271.464889, -876.791748, 0), V(-1271.547933, -876.848421, 0), V(-1271.63586, -876.899547, 0), V(-1271.726604, -876.946761, 0), V(-1271.819718, -876.987212, 0), V(-1271.914147, -877.021584, 0), V(-1272.009651, -877.050901, 0), V(-1272.107034, -877.072309, 0), V(-1272.205638, -877.087537, 0), V(-1272.305326, -877.098136, 0), V(-1272.372369, -877.098944, 0), V(-1272.406051, -877.09935, 0)], [4, 1, 1, 1, 1, 1, 1, 1, 1, 1, 1, 1, 1, 1, 1, 1, 1, 1, 1, 1, 1, 1, 1, 1, 4], [0, 1.02996197, 2.043119294, 3.035359645, 4.018872909, 4.991431989, 5.957985074, 6.929999688, 7.912076566, 8.892894881, 9.867085534, 10.843653904, 11.817741046, 12.803660682, 13.806313499, 14.818574707, 15.856120519, 16.894564902, 17.924820532, 18.937903209, 19.946497019, 20.957711757, 21.963978472, 22.977135795, 24], False, 3, [1, 1, 1, 1, 1, 1, 1, 1, 1, 1, 1, 1, 1, 1, 1, 1, 1, 1, 1, 1, 1, 1, 1, 1, 1, 1, 1], False), False)
sketch4.addGeometry(Part.BSplineCurve([V(-1272.406051, -874.137812, 0), V(-1272.371441, -874.138287, 0), V(-1272.3028, -874.13923, 0), V(-1272.200705, -874.148729, 0), V(-1272.100448, -874.163961, 0), V(-1272.002172, -874.185891, 0), V(-1271.905987, -874.213339, 0), V(-1271.811492, -874.245946, 0), V(-1271.719694, -874.286628, 0), V(-1271.629434, -874.331576, 0), V(-1271.543038, -874.382816, 0), V(-1271.460563, -874.437854, 0), V(-1271.384087, -874.498822, 0), V(-1271.311698, -874.56314, 0), V(-1271.24407, -874.632104, 0), V(-1271.181661, -874.705624, 0), V(-1271.124681, -874.784165, 0), V(-1271.072215, -874.86645, 0), V(-1271.025412, -874.952447, 0), V(-1270.984633, -875.040976, 0), V(-1270.950037, -875.131821, 0), V(-1270.922108, -875.225113, 0), V(-1270.900223, -875.320674, 0), V(-1270.885143, -875.418632, 0), V(-1270.874594, -875.518791, 0), V(-1270.873799, -875.586535, 0), V(-1270.873398, -875.620684, 0)], [4, 1, 1, 1, 1, 1, 1, 1, 1, 1, 1, 1, 1, 1, 1, 1, 1, 1, 1, 1, 1, 1, 1, 1, 4], [0, 1.047197238, 2.076906641, 3.100256066, 4.114471768, 5.12198147, 6.126382909, 7.136867548, 8.15857795, 9.17633901, 10.174870724, 11.156907918, 12.133735059, 13.104061851, 14.077631395, 15.04955518, 16.038496417, 17.029181396, 18.010275684, 18.986308667, 19.968651475, 20.955262928, 21.950658345, 22.966943676, 24], False, 3, [1, 1, 1, 1, 1, 1, 1, 1, 1, 1, 1, 1, 1, 1, 1, 1, 1, 1, 1, 1, 1, 1, 1, 1, 1, 1, 1], False), False)
sketch4.addGeometry(Part.BSplineCurve([V(-1273.92468, -875.604558, 0), V(-1273.923406, -875.553996, 0), V(-1273.920898, -875.454525, 0), V(-1273.89894, -875.308757, 0), V(-1273.865118, -875.168668, 0), V(-1273.815261, -875.035026, 0), V(-1273.75291, -874.906682, 0), V(-1273.675883, -874.784774, 0), V(-1273.584624, -874.669269, 0), V(-1273.480961, -874.560974, 0), V(-1273.367638, -874.462128, 0), V(-1273.247305, -874.375365, 0), V(-1273.121251, -874.301954, 0), V(-1272.989148, -874.242149, 0), V(-1272.851701, -874.19476, 0), V(-1272.708023, -874.162281, 0), V(-1272.559073, -874.140906, 0), V(-1272.457542, -874.138853, 0), V(-1272.406051, -874.137812, 0)], [4, 1, 1, 1, 1, 1, 1, 1, 1, 1, 1, 1, 1, 1, 1, 1, 4], [0, 1.032063989, 2.030389145, 3.003944642, 3.970395727, 4.937377036, 5.913328081, 6.909231446, 7.93887556, 8.970685674, 9.976071282, 10.964166581, 11.944589148, 12.933237628, 13.927779006, 14.949070134, 16], False, 3, [1, 1, 1, 1, 1, 1, 1, 1, 1, 1, 1, 1, 1, 1, 1, 1, 1, 1, 1], False), False)
sketch4.addGeometry(Part.BSplineCurve([V(-1272.406051, -877.09935, 0), V(-1272.439265, -877.098945, 0), V(-1272.505377, -877.098139, 0), V(-1272.603662, -877.087524, 0), V(-1272.700653, -877.072394, 0), V(-1272.796373, -877.050812, 0), V(-1272.890419, -877.021408, 0), V(-1272.983669, -876.987567, 0), V(-1273.075272, -876.946346, 0), V(-1273.164926, -876.899773, 0), V(-1273.251841, -876.848225, 0), V(-1273.333854, -876.791253, 0), V(-1273.411176, -876.730194, 0), V(-1273.48362, -876.664906, 0), V(-1273.550971, -876.595057, 0), V(-1273.614555, -876.521704, 0), V(-1273.671825, -876.442752, 0), V(-1273.724311, -876.360342, 0), V(-1273.771278, -876.27458, 0), V(-1273.813044, -876.186371, 0), V(-1273.847208, -876.094993, 0), V(-1273.87507, -876.001439, 0), V(-1273.89817, -875.905856, 0), V(-1273.912804, -875.80752, 0), V(-1273.923536, -875.706925, 0), V(-1273.924296, -875.638944, 0), V(-1273.92468, -875.604558, 0)], [4, 1, 1, 1, 1, 1, 1, 1, 1, 1, 1, 1, 1, 1, 1, 1, 1, 1, 1, 1, 1, 1, 1, 1, 4], [0, 1.008559885, 2.007477868, 2.99961109, 3.989939068, 4.984837346, 5.991145699, 7.001802488, 8.033829008, 9.059044045, 10.069351652, 11.065060232, 12.050310815, 13.029377138, 14.011219647, 14.996725999, 15.989392538, 16.977580475, 17.965360261, 18.951710183, 19.937753436, 20.929683414, 21.935841486, 22.955955122, 24], False, 3, [1, 1, 1, 1, 1, 1, 1, 1, 1, 1, 1, 1, 1, 1, 1, 1, 1, 1, 1, 1, 1, 1, 1, 1, 1, 1, 1], False), False)
add_polygon(sketch4, [(-1270.15545, -875.394222), (-1270.15545, -875.035248), (-1268.809296, -875.035248), (-1268.809296, -875.394222)])
add_polygon(sketch4, [(-1267.94341, -877.368581), (-1268.40545, -873.868581), (-1268.089244, -873.868581), (-1267.754809, -876.392619), (-1266.486479, -873.868581), (-1266.415666, -873.868581), (-1265.152245, -876.38701), (-1264.817108, -873.868581), (-1264.501604, -873.868581), (-1264.966447, -877.368581), (-1265.01202, -877.368581), (-1266.453527, -874.496786), (-1267.898539, -877.368581)])
add_polygon(sketch4, [(-1260.732373, -873.868581), (-1262.347757, -877.368581), (-1262.392629, -877.368581), (-1264.052886, -873.868581), (-1263.710037, -873.868581), (-1263.177886, -874.990376), (-1261.591247, -874.990376), (-1261.073819, -873.868581)])
add_polygon(sketch4, [(-1262.373699, -876.686389), (-1261.756712, -875.34935), (-1263.007513, -875.34935)])
add_polygon(sketch4, [(-1260.508014, -877.368581), (-1260.508014, -877.009607), (-1259.745193, -877.009607), (-1259.745193, -873.868581), (-1259.431091, -873.868581), (-1259.431091, -877.009607), (-1258.66827, -877.009607), (-1258.66827, -877.368581)])
add_polygon(sketch4, [(-1256.15545, -877.368581), (-1258.129809, -877.368581), (-1258.129809, -873.868581), (-1256.15545, -873.868581), (-1256.15545, -874.227555), (-1257.815706, -874.227555), (-1257.815706, -875.573709), (-1256.15545, -875.573709), (-1256.15545, -875.932683), (-1257.815706, -875.932683), (-1257.815706, -877.009607), (-1256.15545, -877.009607)])
sketch4.addConstraint([
    Sketcher.Constraint("Block", 1),
    Sketcher.Constraint("Block", 2),
    Sketcher.Constraint("Block", 3),
    Sketcher.Constraint("Block", 4),
    Sketcher.Constraint("Block", 5),
    Sketcher.Constraint("Block", 7),
    Sketcher.Constraint("Block", 8),
    Sketcher.Constraint("Block", 9),
    Sketcher.Constraint("Block", 10),
    Sketcher.Constraint("Block", 23),
    Sketcher.Constraint("Block", 24),
    Sketcher.Constraint("Block", 25),
    Sketcher.Constraint("Block", 26),
    Sketcher.Constraint("Block", 27),
    Sketcher.Constraint("Block", 28),
    Sketcher.Constraint("Block", 29),
    Sketcher.Constraint("Block", 30),
    Sketcher.Constraint("Coincident", 0, 2, 1, 2),
    Sketcher.Constraint("Coincident", 5, 1, 6, 1),
    Sketcher.Constraint("Coincident", 6, 2, 7, 2),
    Sketcher.Constraint("Coincident", 10, 1, 0, 1),
    Sketcher.Constraint("Horizontal", 11),
    Sketcher.Constraint("Vertical", 12),
    Sketcher.Constraint("Horizontal", 13),
    Sketcher.Constraint("Vertical", 14),
    Sketcher.Constraint("Horizontal", 15),
    Sketcher.Constraint("Vertical", 16),
    Sketcher.Constraint("Horizontal", 17),
    Sketcher.Constraint("Vertical", 18),
    Sketcher.Constraint("Horizontal", 19),
    Sketcher.Constraint("Vertical", 20),
    Sketcher.Constraint("Horizontal", 21),
    Sketcher.Constraint("Vertical", 22),
    Sketcher.Constraint("Vertical", 31),
    Sketcher.Constraint("Horizontal", 32),
    Sketcher.Constraint("Vertical", 33),
    Sketcher.Constraint("Horizontal", 34),
    Sketcher.Constraint("Horizontal", 36),
    Sketcher.Constraint("Horizontal", 39),
    Sketcher.Constraint("Horizontal", 42),
    Sketcher.Constraint("Horizontal", 44),
    Sketcher.Constraint("Horizontal", 47),
    Sketcher.Constraint("Horizontal", 49),
    Sketcher.Constraint("Horizontal", 51),
    Sketcher.Constraint("Horizontal", 53),
    Sketcher.Constraint("Horizontal", 55),
    Sketcher.Constraint("Horizontal", 57),
    Sketcher.Constraint("Vertical", 59),
    Sketcher.Constraint("Horizontal", 60),
    Sketcher.Constraint("Vertical", 61),
    Sketcher.Constraint("Horizontal", 62),
    Sketcher.Constraint("Vertical", 63),
    Sketcher.Constraint("Horizontal", 64),
    Sketcher.Constraint("Vertical", 65),
    Sketcher.Constraint("Horizontal", 66),
    Sketcher.Constraint("Horizontal", 67),
    Sketcher.Constraint("Vertical", 68),
    Sketcher.Constraint("Horizontal", 69),
    Sketcher.Constraint("Vertical", 70),
    Sketcher.Constraint("Horizontal", 71),
    Sketcher.Constraint("Vertical", 72),
    Sketcher.Constraint("Horizontal", 73),
    Sketcher.Constraint("Vertical", 74),
    Sketcher.Constraint("Horizontal", 75),
    Sketcher.Constraint("Vertical", 76),
    Sketcher.Constraint("Horizontal", 77),
    Sketcher.Constraint("Vertical", 78),
    Sketcher.Constraint("Horizontal", 13, 2, 16, 2),
    Sketcher.Constraint("Horizontal", 11, 2, 18, 2),
    Sketcher.Constraint("Horizontal", 17, 2, 35, 2),
    Sketcher.Constraint("Horizontal", 36, 2, 38, 2),
    Sketcher.Constraint("Horizontal", 39, 2, 41, 2),
    Sketcher.Constraint("Horizontal", 22, 2, 43, 2),
    Sketcher.Constraint("Horizontal", 44, 2, 46, 2),
    Sketcher.Constraint("Horizontal", 47, 2, 48, 2),
    Sketcher.Constraint("Horizontal", 42, 2, 50, 2),
    Sketcher.Constraint("Horizontal", 51, 2, 54, 2),
    Sketcher.Constraint("Horizontal", 55, 2, 61, 2),
    Sketcher.Constraint("Horizontal", 60, 2, 63, 2),
    Sketcher.Constraint("Horizontal", 49, 2, 65, 2),
    Sketcher.Constraint("Horizontal", 66, 2, 67, 2),
    Sketcher.Constraint("Horizontal", 62, 2, 68, 2),
    Sketcher.Constraint("Horizontal", 15, 2, 72, 2),
    Sketcher.Constraint("Horizontal", 21, 2, 74, 2),
    Sketcher.Constraint("Horizontal", 64, 2, 76, 2),
    Sketcher.Constraint("Vertical", 16, 2, 19, 2),
    Sketcher.Constraint("Vertical", 14, 2, 21, 2),
    Sketcher.Constraint("Vertical", 70, 2, 73, 2),
    Sketcher.Constraint("Vertical", 72, 2, 75, 2),
    Sketcher.Constraint("Vertical", 74, 2, 77, 2),
    Sketcher.Constraint("Equal", 13, 17),
    Sketcher.Constraint("Equal", 47, 49),
    Sketcher.Constraint("Equal", 19, 62),
    Sketcher.Constraint("Equal", 60, 64),
    Sketcher.Constraint("Equal", 33, 59),
    Sketcher.Constraint("Equal", 65, 70),
    Sketcher.Constraint("Equal", 34, 72),
    Sketcher.Constraint("Equal", 70, 74),
    Sketcher.Constraint("DistanceY", 12, 1, 12, 2, Q("3.5 mm")),
    Sketcher.Constraint("Angle", 41, Q("82.419985 deg")),
    Sketcher.Constraint("DistanceX", 57, 2, 57, 1, Q("1.250801 mm")),
    Sketcher.Constraint("Distance", 37, Q("2.546098 mm")),
    Sketcher.Constraint("DistanceX", 15, 1, 15, 2, Q("1.794872 mm")),
    Sketcher.Constraint("DistanceX", 47, 2, 47, 1, Q("0.044872 mm")),
    Sketcher.Constraint("DistanceX", 51, 1, 51, 2, Q("0.342849 mm")),
    Sketcher.Constraint("DistanceX", 53, 1, 53, 2, Q("1.586639 mm")),
    Sketcher.Constraint("DistanceX", 60, 1, 60, 2, Q("0.762821 mm")),
    Sketcher.Constraint("DistanceX", 67, 2, 67, 1, Q("1.974359 mm")),
    Sketcher.Constraint("DistanceY", 14, 2, 14, 1, Q("1.705128 mm")),
    Sketcher.Constraint("DistanceX", 58, 2, -1, 1, Q("1262.373699 mm")),
    Sketcher.Constraint("Distance", 38, Q("2.824788 mm")),
    Sketcher.Constraint("Distance", 41, Q("2.540631 mm")),
    Sketcher.Constraint("Distance", 46, Q("3.214851 mm")),
    Sketcher.Constraint("Distance", 56, Q("1.472531 mm")),
    Sketcher.Constraint("Distance", 58, Q("1.47966 mm")),
    Sketcher.Constraint("DistanceX", 11, 2, 11, 1, Q("0.314103 mm")),
    Sketcher.Constraint("DistanceX", 32, 1, 32, 2, Q("1.346154 mm")),
    Sketcher.Constraint("DistanceX", 36, 1, 36, 2, Q("0.316206 mm")),
    Sketcher.Constraint("DistanceX", 39, 1, 39, 2, Q("0.070813 mm")),
    Sketcher.Constraint("DistanceX", 42, 1, 42, 2, Q("0.315505 mm")),
    Sketcher.Constraint("DistanceX", 44, 2, 44, 1, Q("0.045573 mm")),
    Sketcher.Constraint("DistanceX", 55, 1, 55, 2, Q("0.341446 mm")),
    Sketcher.Constraint("DistanceX", 71, 2, 71, 1, Q("1.660256 mm")),
    Sketcher.Constraint("DistanceX", 11, 2, -1, 1, Q("1277.379809 mm")),
    Sketcher.Constraint("DistanceY", 11, 2, -1, 1, Q("877.368581 mm")),
    Sketcher.Constraint("DistanceX", 31, 2, -1, 1, Q("1270.15545 mm")),
    Sketcher.Constraint("DistanceY", 33, 2, -1, 1, Q("875.394222 mm")),
    Sketcher.Constraint("DistanceX", 35, 2, -1, 1, Q("1268.40545 mm")),
    Sketcher.Constraint("DistanceX", 37, 2, -1, 1, Q("1267.754809 mm")),
    Sketcher.Constraint("DistanceX", 41, 2, -1, 1, Q("1264.817108 mm")),
    Sketcher.Constraint("DistanceX", 44, 2, -1, 1, Q("1265.01202 mm")),
    Sketcher.Constraint("DistanceX", 46, 2, -1, 1, Q("1267.898539 mm")),
    Sketcher.Constraint("DistanceX", 49, 2, -1, 1, Q("1262.392629 mm")),
    Sketcher.Constraint("DistanceX", 54, 2, -1, 1, Q("1261.073819 mm")),
    Sketcher.Constraint("DistanceY", 56, 2, -1, 1, Q("875.34935 mm")),
    Sketcher.Constraint("DistanceX", 62, 2, -1, 1, Q("1259.431091 mm")),
    Sketcher.Constraint("DistanceX", 67, 2, -1, 1, Q("1258.129809 mm")),
    Sketcher.Constraint("Distance", 45, Q("3.213277 mm")),
    Sketcher.Constraint("Distance", 50, Q("3.873816 mm")),
    Sketcher.Constraint("Distance", 52, Q("1.241615 mm")),
    Sketcher.Constraint("Distance", 54, Q("1.235377 mm")),
])
pocket1 = body.newObject("PartDesign::Pocket", "Pocket")
pocket1.Profile = sketch4
pocket1.Length = 1
pocket1.Reversed = True
doc.recompute()

fillet = body.newObject("PartDesign::Fillet", "Fillet")
fillet.Base = (pocket1, edges_at(pocket1, [
    (-1336.9, 0.85, -893.1),
    (-1203.5, 0.85, -893.1),
    (-1203.5, 0.85, -809.1),
    (-1336.9, 0.85, -809.1),
]))
fillet.Radius = 3

doc.recompute()
